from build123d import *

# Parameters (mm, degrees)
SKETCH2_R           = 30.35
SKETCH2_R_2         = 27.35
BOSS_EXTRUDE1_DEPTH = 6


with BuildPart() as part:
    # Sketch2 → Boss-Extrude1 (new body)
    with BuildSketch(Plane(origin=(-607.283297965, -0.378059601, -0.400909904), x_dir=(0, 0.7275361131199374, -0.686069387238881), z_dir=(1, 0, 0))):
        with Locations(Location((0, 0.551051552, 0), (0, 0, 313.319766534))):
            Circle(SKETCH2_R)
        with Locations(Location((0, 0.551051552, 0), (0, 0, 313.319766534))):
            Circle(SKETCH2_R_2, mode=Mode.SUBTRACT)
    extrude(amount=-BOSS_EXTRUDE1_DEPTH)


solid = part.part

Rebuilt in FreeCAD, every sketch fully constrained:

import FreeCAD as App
import Part
import Sketcher
from FreeCAD import Vector
Q = App.Units.Quantity

doc = App.newDocument("Part")
params = doc.addObject("Spreadsheet::Sheet", "Params")
for row, (alias, value) in enumerate([
    ("sketch1_diameter", "60.7 mm"),
    ("sketch1_diameter2", "54.7 mm"),
    ("pad1_length", "6 mm"),
], start=1):
    params.set(f"A{row}", alias)
    params.set(f"B{row}", "=" + value)
    params.setAlias(f"B{row}", alias)

body = doc.addObject("PartDesign::Body", "Body")

sketch1 = doc.addObject("Sketcher::SketchObject", "Sketch")
body.addObject(sketch1)
sketch1.AttachmentSupport = (doc.YZ_Plane, [""])
sketch1.MapMode = "FlatFace"
sketch1.AttachmentOffset = App.Placement(Vector(0, 0, -607.283298), App.Rotation())
sketch1.addGeometry([
    Part.Circle(Vector(0, 0, 0), Vector(0, 0, 1), 30.35),
    Part.Circle(Vector(0, 0, 0), Vector(0, 0, 1), 27.35),
], False)
sketch1.addConstraint([
    Sketcher.Constraint("Coincident", 0, 3, -1, 1),
    Sketcher.Constraint("Coincident", 1, 3, -1, 1),
    Sketcher.Constraint("Diameter", 0, Q("60.7 mm")),
    Sketcher.Constraint("Diameter", 1, Q("54.7 mm")),
])
sketch1.setExpression("Constraints[2]", "Params.sketch1_diameter")
sketch1.setExpression("Constraints[3]", "Params.sketch1_diameter2")
pad1 = doc.addObject("PartDesign::Pad", "Pad")
body.addObject(pad1)
pad1.Profile = sketch1
pad1.setExpression("Length", "Params.pad1_length")
pad1.Reversed = True

doc.recompute()
